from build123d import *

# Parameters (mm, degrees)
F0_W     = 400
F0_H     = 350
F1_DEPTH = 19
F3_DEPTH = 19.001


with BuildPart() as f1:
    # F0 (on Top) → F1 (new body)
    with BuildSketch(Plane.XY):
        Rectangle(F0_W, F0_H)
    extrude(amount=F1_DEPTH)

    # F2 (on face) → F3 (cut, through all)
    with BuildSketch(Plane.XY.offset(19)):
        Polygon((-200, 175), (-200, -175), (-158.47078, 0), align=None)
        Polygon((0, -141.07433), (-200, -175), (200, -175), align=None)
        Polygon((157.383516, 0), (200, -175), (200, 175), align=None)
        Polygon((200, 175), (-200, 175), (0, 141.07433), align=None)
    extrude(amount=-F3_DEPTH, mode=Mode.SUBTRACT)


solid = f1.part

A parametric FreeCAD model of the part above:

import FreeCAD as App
import Part
import Sketcher
Q = App.Units.Quantity

doc = App.newDocument("Part")
body = doc.addObject("PartDesign::Body", "Body")

sketch1 = doc.addObject("Sketcher::SketchObject", "Sketch")
body.addObject(sketch1)
sketch1.AttachmentSupport = (doc.XY_Plane, [""])
sketch1.MapMode = "FlatFace"
sketch1.addGeometry(Part.LineSegment(App.Vector(-200, 175, 0), App.Vector(-200, -175, 0)), False)
sketch1.addGeometry(Part.LineSegment(App.Vector(-200, -175, 0), App.Vector(200, -175, 0)), False)
sketch1.addGeometry(Part.LineSegment(App.Vector(200, -175, 0), App.Vector(200, 175, 0)), False)
sketch1.addGeometry(Part.LineSegment(App.Vector(200, 175, 0), App.Vector(-200, 175, 0)), False)
sketch1.addConstraint(Sketcher.Constraint("Coincident", 0, 2, 1, 1))
sketch1.addConstraint(Sketcher.Constraint("Coincident", 1, 2, 2, 1))
sketch1.addConstraint(Sketcher.Constraint("Coincident", 2, 2, 3, 1))
sketch1.addConstraint(Sketcher.Constraint("Coincident", 3, 2, 0, 1))
sketch1.addConstraint(Sketcher.Constraint("Vertical", 0))
sketch1.addConstraint(Sketcher.Constraint("Horizontal", 1))
sketch1.addConstraint(Sketcher.Constraint("Vertical", 2))
sketch1.addConstraint(Sketcher.Constraint("Horizontal", 3))
sketch1.addConstraint(Sketcher.Constraint("Symmetric", 0, 2, 2, 2, -1, 1))
sketch1.addConstraint(Sketcher.Constraint("DistanceX", 1, 1, 1, 2, Q("400 mm")))
sketch1.addConstraint(Sketcher.Constraint("DistanceY", 0, 2, 0, 1, Q("350 mm")))
pad1 = doc.addObject("PartDesign::Pad", "Pad")
body.addObject(pad1)
pad1.Profile = sketch1
pad1.Length = 19

sketch2 = doc.addObject("Sketcher::SketchObject", "Sketch001")
body.addObject(sketch2)
sketch2.AttachmentSupport = (doc.XY_Plane, [""])
sketch2.MapMode = "FlatFace"
sketch2.AttachmentOffset = App.Placement(App.Vector(0, 0, 19), App.Rotation())
sketch2.addGeometry(Part.LineSegment(App.Vector(-200, 175, 0), App.Vector(-200, -175, 0)), False)
sketch2.addGeometry(Part.LineSegment(App.Vector(-200, -175, 0), App.Vector(-158, 0, 0)), False)
sketch2.addGeometry(Part.LineSegment(App.Vector(-158, 0, 0), App.Vector(-200, 175, 0)), False)
sketch2.addGeometry(Part.LineSegment(App.Vector(0, -141, 0), App.Vector(-200, -175, 0)), False)
sketch2.addGeometry(Part.LineSegment(App.Vector(-200, -175, 0), App.Vector(200, -175, 0)), False)
sketch2.addGeometry(Part.LineSegment(App.Vector(200, -175, 0), App.Vector(0, -141, 0)), False)
sketch2.addGeometry(Part.LineSegment(App.Vector(157, 0, 0), App.Vector(200, -175, 0)), False)
sketch2.addGeometry(Part.LineSegment(App.Vector(200, -175, 0), App.Vector(200, 175, 0)), False)
sketch2.addGeometry(Part.LineSegment(App.Vector(200, 175, 0), App.Vector(157, 0, 0)), False)
sketch2.addGeometry(Part.LineSegment(App.Vector(200, 175, 0), App.Vector(-200, 175, 0)), False)
sketch2.addGeometry(Part.LineSegment(App.Vector(-200, 175, 0), App.Vector(0, 141, 0)), False)
sketch2.addGeometry(Part.LineSegment(App.Vector(0, 141, 0), App.Vector(200, 175, 0)), False)
sketch2.addConstraint(Sketcher.Constraint("Coincident", 0, 2, 1, 1))
sketch2.addConstraint(Sketcher.Constraint("Coincident", 1, 2, 2, 1))
sketch2.addConstraint(Sketcher.Constraint("Coincident", 2, 2, 0, 1))
sketch2.addConstraint(Sketcher.Constraint("Coincident", 3, 2, 4, 1))
sketch2.addConstraint(Sketcher.Constraint("Coincident", 4, 2, 5, 1))
sketch2.addConstraint(Sketcher.Constraint("Coincident", 5, 2, 3, 1))
sketch2.addConstraint(Sketcher.Constraint("Coincident", 6, 2, 7, 1))
sketch2.addConstraint(Sketcher.Constraint("Coincident", 7, 2, 8, 1))
sketch2.addConstraint(Sketcher.Constraint("Coincident", 8, 2, 6, 1))
sketch2.addConstraint(Sketcher.Constraint("Coincident", 9, 2, 10, 1))
sketch2.addConstraint(Sketcher.Constraint("Coincident", 10, 2, 11, 1))
sketch2.addConstraint(Sketcher.Constraint("Coincident", 11, 2, 9, 1))
sketch2.addConstraint(Sketcher.Constraint("Vertical", 0))
sketch2.addConstraint(Sketcher.Constraint("Horizontal", 4))
sketch2.addConstraint(Sketcher.Constraint("Vertical", 7))
sketch2.addConstraint(Sketcher.Constraint("Horizontal", 9))
sketch2.addConstraint(Sketcher.Constraint("Coincident", 3, 2, 0, 2))
sketch2.addConstraint(Sketcher.Constraint("Coincident", 6, 2, 4, 2))
sketch2.addConstraint(Sketcher.Constraint("Coincident", 9, 2, 2, 2))
sketch2.addConstraint(Sketcher.Constraint("Coincident", 11, 2, 7, 2))
sketch2.addConstraint(Sketcher.Constraint("Symmetric", 2, 2, 4, 2, -1, 1))
sketch2.addConstraint(Sketcher.Constraint("Symmetric", 5, 2, 10, 2, -1, 1))
sketch2.addConstraint(Sketcher.Constraint("PointOnObject", 1, 2, -1))
sketch2.addConstraint(Sketcher.Constraint("PointOnObject", 5, 2, -2))
sketch2.addConstraint(Sketcher.Constraint("PointOnObject", 8, 2, -1))
sketch2.addConstraint(Sketcher.Constraint("DistanceX", 4, 1, 4, 2, Q("400 mm")))
sketch2.addConstraint(Sketcher.Constraint("DistanceY", 0, 2, 0, 1, Q("350 mm")))
sketch2.addConstraint(Sketcher.Constraint("Distance", 3, Q("202.856972 mm")))
sketch2.addConstraint(Sketcher.Constraint("Distance", 6, Q("180.11431 mm")))
sketch2.addConstraint(Sketcher.Constraint("DistanceX", 1, 2, -1, 1, Q("158.47078 mm")))
pocket1 = doc.addObject("PartDesign::Pocket", "Pocket")
body.addObject(pocket1)
pocket1.Profile = sketch2
pocket1.Type = "ThroughAll"

doc.recompute()
